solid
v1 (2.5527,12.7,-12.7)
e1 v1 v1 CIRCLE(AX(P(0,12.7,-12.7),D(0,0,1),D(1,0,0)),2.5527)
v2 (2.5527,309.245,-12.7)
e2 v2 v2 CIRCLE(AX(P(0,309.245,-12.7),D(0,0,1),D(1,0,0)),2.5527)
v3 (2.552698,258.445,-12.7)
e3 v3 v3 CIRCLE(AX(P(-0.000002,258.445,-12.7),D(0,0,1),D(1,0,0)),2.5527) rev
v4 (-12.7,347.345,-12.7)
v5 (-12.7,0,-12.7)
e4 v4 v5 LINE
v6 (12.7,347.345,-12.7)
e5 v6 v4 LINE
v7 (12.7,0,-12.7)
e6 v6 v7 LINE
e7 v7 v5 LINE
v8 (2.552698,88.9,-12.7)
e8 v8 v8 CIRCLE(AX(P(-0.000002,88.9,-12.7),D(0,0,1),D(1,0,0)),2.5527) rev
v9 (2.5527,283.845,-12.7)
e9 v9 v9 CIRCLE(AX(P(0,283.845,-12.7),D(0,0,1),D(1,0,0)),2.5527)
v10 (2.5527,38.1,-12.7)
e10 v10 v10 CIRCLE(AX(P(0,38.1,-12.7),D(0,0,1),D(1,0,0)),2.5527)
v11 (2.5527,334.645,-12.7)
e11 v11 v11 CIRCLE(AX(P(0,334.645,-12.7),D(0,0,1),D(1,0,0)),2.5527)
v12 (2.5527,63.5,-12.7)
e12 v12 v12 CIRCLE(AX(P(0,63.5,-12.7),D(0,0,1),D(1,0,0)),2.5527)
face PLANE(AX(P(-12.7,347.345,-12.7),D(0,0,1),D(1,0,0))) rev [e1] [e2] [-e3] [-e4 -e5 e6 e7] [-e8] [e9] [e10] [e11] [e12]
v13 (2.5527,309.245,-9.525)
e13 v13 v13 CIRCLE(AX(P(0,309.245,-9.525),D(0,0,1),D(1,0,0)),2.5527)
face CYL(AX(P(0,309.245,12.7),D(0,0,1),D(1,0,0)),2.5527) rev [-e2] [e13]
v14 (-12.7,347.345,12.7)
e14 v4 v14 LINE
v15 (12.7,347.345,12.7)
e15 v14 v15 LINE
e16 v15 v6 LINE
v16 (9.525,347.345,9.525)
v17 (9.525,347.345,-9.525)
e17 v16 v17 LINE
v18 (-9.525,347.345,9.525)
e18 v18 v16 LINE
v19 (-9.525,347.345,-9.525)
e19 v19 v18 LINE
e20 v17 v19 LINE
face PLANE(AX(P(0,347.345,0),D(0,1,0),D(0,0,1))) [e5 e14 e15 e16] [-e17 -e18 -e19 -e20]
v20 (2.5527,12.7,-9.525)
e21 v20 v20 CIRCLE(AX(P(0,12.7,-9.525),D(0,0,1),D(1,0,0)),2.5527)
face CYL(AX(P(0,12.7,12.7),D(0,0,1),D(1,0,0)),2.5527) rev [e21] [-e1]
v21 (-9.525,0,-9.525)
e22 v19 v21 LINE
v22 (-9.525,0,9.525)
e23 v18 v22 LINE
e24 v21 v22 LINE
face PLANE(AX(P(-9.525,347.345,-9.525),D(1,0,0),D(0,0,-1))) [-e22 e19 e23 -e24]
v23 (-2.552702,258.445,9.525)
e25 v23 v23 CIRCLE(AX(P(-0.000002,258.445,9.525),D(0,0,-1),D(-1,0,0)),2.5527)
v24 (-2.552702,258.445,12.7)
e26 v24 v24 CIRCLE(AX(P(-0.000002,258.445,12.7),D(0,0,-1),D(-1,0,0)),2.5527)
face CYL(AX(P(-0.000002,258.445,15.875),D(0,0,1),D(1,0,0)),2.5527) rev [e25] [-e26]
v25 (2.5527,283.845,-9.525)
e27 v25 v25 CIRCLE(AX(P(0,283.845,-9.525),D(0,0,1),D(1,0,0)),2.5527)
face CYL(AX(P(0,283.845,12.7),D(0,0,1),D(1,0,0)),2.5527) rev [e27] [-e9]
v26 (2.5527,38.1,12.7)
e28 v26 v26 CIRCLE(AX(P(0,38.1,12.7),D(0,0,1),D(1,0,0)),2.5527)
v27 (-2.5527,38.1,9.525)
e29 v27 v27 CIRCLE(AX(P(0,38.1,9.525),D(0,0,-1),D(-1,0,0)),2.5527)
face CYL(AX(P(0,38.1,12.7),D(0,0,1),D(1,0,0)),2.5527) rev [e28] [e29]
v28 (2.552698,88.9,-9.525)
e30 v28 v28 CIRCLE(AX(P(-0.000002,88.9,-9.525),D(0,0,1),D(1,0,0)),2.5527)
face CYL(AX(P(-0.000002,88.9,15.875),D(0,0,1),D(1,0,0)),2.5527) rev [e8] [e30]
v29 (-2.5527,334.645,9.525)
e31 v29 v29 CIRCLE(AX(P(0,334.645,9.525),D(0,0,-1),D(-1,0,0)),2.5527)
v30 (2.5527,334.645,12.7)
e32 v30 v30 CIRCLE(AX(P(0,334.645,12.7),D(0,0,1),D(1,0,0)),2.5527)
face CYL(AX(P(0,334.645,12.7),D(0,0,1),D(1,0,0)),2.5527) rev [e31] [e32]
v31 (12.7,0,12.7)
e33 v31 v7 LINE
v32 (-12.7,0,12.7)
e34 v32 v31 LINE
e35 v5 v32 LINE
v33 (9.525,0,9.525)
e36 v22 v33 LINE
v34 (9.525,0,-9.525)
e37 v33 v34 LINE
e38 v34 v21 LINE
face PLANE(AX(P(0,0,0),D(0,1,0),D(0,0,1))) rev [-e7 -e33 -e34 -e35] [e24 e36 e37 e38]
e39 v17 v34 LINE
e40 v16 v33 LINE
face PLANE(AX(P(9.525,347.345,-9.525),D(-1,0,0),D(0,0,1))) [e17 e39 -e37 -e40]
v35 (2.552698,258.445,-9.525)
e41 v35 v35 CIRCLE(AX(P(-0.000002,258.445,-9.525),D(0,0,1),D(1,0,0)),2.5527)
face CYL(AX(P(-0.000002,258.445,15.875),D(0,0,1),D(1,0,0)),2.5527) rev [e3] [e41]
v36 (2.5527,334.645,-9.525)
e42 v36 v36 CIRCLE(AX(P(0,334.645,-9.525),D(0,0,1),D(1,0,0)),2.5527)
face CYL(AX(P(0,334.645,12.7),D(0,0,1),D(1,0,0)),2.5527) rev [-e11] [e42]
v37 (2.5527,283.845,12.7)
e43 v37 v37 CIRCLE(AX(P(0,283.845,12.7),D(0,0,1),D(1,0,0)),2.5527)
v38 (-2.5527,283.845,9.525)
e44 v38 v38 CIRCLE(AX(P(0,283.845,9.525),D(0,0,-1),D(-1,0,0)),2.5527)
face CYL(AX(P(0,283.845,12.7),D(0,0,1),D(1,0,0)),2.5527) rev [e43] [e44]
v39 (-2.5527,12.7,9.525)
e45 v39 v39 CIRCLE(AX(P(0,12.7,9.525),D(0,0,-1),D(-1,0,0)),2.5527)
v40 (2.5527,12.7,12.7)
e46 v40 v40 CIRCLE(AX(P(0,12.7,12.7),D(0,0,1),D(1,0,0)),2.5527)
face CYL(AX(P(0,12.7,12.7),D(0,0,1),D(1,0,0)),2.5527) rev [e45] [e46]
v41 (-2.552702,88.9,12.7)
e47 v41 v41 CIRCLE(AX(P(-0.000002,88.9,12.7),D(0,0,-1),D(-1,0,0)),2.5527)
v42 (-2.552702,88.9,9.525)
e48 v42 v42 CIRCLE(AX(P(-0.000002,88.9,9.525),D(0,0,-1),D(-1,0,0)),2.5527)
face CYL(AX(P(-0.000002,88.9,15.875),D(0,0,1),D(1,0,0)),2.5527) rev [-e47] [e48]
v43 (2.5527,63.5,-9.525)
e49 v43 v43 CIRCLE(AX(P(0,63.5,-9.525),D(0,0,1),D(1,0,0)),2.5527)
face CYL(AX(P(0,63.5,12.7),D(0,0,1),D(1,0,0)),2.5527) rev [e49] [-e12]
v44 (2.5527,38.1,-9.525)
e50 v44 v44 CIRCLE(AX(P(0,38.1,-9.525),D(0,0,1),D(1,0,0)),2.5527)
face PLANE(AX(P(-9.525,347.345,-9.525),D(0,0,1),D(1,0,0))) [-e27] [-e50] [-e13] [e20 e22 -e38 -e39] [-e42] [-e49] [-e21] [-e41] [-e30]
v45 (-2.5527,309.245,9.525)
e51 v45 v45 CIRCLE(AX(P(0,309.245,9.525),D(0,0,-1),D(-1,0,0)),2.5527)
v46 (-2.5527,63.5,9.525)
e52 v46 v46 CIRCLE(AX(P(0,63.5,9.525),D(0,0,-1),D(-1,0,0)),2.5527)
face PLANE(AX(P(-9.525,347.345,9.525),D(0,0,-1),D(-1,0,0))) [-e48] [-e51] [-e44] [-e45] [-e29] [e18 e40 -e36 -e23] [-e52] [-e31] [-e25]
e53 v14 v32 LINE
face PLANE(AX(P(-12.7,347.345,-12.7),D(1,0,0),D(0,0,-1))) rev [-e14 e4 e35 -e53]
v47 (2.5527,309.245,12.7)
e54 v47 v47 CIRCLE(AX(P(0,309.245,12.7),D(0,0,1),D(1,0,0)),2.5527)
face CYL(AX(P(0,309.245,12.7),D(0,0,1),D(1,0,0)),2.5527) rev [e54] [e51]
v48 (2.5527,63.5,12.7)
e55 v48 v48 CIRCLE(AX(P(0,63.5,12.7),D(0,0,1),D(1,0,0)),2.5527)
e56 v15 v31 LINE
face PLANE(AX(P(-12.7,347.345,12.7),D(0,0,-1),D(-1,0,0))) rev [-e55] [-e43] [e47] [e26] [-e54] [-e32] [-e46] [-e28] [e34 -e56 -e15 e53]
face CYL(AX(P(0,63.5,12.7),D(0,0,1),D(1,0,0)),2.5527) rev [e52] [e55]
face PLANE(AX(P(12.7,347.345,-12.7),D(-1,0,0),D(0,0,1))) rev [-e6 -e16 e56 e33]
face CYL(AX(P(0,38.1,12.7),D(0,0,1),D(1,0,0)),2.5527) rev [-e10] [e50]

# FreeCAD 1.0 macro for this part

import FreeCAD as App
import Part
import Sketcher
Q = App.Units.Quantity


def add_polygon(sketch, points):
    """Adds a closed chain of lines whose ends are joined by coincident constraints."""
    first, n = sketch.GeometryCount, len(points)
    for a, b in zip(points, points[1:] + points[:1]):
        sketch.addGeometry(Part.LineSegment(App.Vector(*a, 0), App.Vector(*b, 0)), False)
    for i in range(n):
        sketch.addConstraint(Sketcher.Constraint("Coincident", first + i, 2, first + (i + 1) % n, 1))

doc = App.newDocument("Part")
body = doc.addObject("PartDesign::Body", "Body")

# Sketch on XZ plane
sketch1 = doc.addObject("Sketcher::SketchObject", "Sketch")
body.addObject(sketch1)
sketch1.AttachmentSupport = (doc.XZ_Plane, [""])
sketch1.MapMode = "FlatFace"
add_polygon(sketch1, [(-13, -13), (-13, 13), (13, 13), (13, -13)])  # lines 0-3
add_polygon(sketch1, [(10, 10), (-10, 10), (-10, -10), (10, -10)])  # lines 4-7
sketch1.addConstraint([
    Sketcher.Constraint("Vertical", 0),
    Sketcher.Constraint("Horizontal", 1),
    Sketcher.Constraint("Vertical", 2),
    Sketcher.Constraint("Horizontal", 3),
    Sketcher.Constraint("Horizontal", 4),
    Sketcher.Constraint("Vertical", 5),
    Sketcher.Constraint("Horizontal", 6),
    Sketcher.Constraint("Vertical", 7),
    Sketcher.Constraint("Symmetric", 0, 2, 2, 2, -1, 1),
    Sketcher.Constraint("Symmetric", 4, 2, 6, 2, -1, 1),
    Sketcher.Constraint("Equal", 3, 0),
    Sketcher.Constraint("Equal", 6, 5),
    Sketcher.Constraint("DistanceX", 1, 1, 1, 2, Q("1 in")),
    Sketcher.Constraint("DistanceX", 4, 2, 4, 1, Q("0.75 in")),
])
pad1 = doc.addObject("PartDesign::Pad", "Pad")
body.addObject(pad1)
pad1.Profile = sketch1
pad1.Length = Q("13.675 in")
pad1.Reversed = True

# Sketch on XY plane
sketch2 = doc.addObject("Sketcher::SketchObject", "Sketch001")
body.addObject(sketch2)
sketch2.AttachmentSupport = (doc.XY_Plane, [""])
sketch2.MapMode = "FlatFace"
sketch2.AttachmentOffset = App.Placement(App.Vector(0, 0, 0.5 * 25.4), App.Rotation())
sketch2.addGeometry([
    Part.Circle(App.Vector(0, 283.8, 0), App.Vector(0, 0, 1), 2.6),  # 0
    Part.Circle(App.Vector(0, 12.7, 0), App.Vector(0, 0, 1), 2.6),  # 1
    Part.Circle(App.Vector(0, 38.1, 0), App.Vector(0, 0, 1), 2.6),  # 2
    Part.Circle(App.Vector(0, 63.5, 0), App.Vector(0, 0, 1), 2.6),  # 3
    Part.Circle(App.Vector(0, 334.6, 0), App.Vector(0, 0, 1), 2.6),  # 4
    Part.Circle(App.Vector(0, 309.2, 0), App.Vector(0, 0, 1), 2.6),  # 5
], False)
sketch2.addConstraint([
    Sketcher.Constraint("Equal", 0, 1),
    Sketcher.Constraint("Equal", 1, 2),
    Sketcher.Constraint("Equal", 2, 3),
    Sketcher.Constraint("Equal", 3, 4),
    Sketcher.Constraint("Equal", 4, 5),
    Sketcher.Constraint("PointOnObject", 0, 3, -2),
    Sketcher.Constraint("PointOnObject", 1, 3, -2),
    Sketcher.Constraint("PointOnObject", 2, 3, -2),
    Sketcher.Constraint("PointOnObject", 3, 3, -2),
    Sketcher.Constraint("PointOnObject", 4, 3, -2),
    Sketcher.Constraint("PointOnObject", 5, 3, -2),
    Sketcher.Constraint("Diameter", 0, Q("0.201 in")),
    Sketcher.Constraint("DistanceY", 1, 3, 2, 3, Q("1 in")),
    Sketcher.Constraint("DistanceY", 2, 3, 3, 3, Q("1 in")),
    Sketcher.Constraint("DistanceY", 0, 3, 4, 3, Q("2 in")),
    Sketcher.Constraint("DistanceY", 0, 3, 5, 3, Q("1 in")),
    Sketcher.Constraint("DistanceY", -1, 1, 1, 3, Q("0.5 in")),
    Sketcher.Constraint("DistanceY", -1, 1, 0, 3, Q("11.175 in")),
])
doc.recompute()
hole = doc.addObject("PartDesign::Hole", "Hole")
body.addObject(hole)
hole.Profile = sketch2
hole.ThreadType = "None"
hole.Diameter = Q("0.201 in")
hole.DepthType = "ThroughAll"

# Sketch on XY plane
sketch3 = doc.addObject("Sketcher::SketchObject", "Sketch002")
body.addObject(sketch3)
sketch3.AttachmentSupport = (doc.XY_Plane, [""])
sketch3.MapMode = "FlatFace"
sketch3.AttachmentOffset = App.Placement(App.Vector(0, 0, 0.625 * 25.4), App.Rotation())
sketch3.addGeometry([
    Part.Circle(App.Vector(0, 88.9, 0), App.Vector(0, 0, 1), 2.6),
    Part.Circle(App.Vector(0, 258.4, 0), App.Vector(0, 0, 1), 2.6),
], False)
sketch3.addConstraint([
    Sketcher.Constraint("Equal", 0, 1),
    Sketcher.Constraint("PointOnObject", 0, 3, -2),
    Sketcher.Constraint("PointOnObject", 1, 3, -2),
    Sketcher.Constraint("Diameter", 0, Q("0.201 in")),
    Sketcher.Constraint("DistanceY", -1, 1, 0, 3, Q("3.5 in")),
    Sketcher.Constraint("DistanceY", -1, 1, 1, 3, Q("10.175 in")),
])
doc.recompute()
hole2 = doc.addObject("PartDesign::Hole", "Hole001")
body.addObject(hole2)
hole2.Profile = sketch3
hole2.ThreadType = "None"
hole2.Diameter = Q("0.201 in")
hole2.DepthType = "ThroughAll"

doc.recompute()
